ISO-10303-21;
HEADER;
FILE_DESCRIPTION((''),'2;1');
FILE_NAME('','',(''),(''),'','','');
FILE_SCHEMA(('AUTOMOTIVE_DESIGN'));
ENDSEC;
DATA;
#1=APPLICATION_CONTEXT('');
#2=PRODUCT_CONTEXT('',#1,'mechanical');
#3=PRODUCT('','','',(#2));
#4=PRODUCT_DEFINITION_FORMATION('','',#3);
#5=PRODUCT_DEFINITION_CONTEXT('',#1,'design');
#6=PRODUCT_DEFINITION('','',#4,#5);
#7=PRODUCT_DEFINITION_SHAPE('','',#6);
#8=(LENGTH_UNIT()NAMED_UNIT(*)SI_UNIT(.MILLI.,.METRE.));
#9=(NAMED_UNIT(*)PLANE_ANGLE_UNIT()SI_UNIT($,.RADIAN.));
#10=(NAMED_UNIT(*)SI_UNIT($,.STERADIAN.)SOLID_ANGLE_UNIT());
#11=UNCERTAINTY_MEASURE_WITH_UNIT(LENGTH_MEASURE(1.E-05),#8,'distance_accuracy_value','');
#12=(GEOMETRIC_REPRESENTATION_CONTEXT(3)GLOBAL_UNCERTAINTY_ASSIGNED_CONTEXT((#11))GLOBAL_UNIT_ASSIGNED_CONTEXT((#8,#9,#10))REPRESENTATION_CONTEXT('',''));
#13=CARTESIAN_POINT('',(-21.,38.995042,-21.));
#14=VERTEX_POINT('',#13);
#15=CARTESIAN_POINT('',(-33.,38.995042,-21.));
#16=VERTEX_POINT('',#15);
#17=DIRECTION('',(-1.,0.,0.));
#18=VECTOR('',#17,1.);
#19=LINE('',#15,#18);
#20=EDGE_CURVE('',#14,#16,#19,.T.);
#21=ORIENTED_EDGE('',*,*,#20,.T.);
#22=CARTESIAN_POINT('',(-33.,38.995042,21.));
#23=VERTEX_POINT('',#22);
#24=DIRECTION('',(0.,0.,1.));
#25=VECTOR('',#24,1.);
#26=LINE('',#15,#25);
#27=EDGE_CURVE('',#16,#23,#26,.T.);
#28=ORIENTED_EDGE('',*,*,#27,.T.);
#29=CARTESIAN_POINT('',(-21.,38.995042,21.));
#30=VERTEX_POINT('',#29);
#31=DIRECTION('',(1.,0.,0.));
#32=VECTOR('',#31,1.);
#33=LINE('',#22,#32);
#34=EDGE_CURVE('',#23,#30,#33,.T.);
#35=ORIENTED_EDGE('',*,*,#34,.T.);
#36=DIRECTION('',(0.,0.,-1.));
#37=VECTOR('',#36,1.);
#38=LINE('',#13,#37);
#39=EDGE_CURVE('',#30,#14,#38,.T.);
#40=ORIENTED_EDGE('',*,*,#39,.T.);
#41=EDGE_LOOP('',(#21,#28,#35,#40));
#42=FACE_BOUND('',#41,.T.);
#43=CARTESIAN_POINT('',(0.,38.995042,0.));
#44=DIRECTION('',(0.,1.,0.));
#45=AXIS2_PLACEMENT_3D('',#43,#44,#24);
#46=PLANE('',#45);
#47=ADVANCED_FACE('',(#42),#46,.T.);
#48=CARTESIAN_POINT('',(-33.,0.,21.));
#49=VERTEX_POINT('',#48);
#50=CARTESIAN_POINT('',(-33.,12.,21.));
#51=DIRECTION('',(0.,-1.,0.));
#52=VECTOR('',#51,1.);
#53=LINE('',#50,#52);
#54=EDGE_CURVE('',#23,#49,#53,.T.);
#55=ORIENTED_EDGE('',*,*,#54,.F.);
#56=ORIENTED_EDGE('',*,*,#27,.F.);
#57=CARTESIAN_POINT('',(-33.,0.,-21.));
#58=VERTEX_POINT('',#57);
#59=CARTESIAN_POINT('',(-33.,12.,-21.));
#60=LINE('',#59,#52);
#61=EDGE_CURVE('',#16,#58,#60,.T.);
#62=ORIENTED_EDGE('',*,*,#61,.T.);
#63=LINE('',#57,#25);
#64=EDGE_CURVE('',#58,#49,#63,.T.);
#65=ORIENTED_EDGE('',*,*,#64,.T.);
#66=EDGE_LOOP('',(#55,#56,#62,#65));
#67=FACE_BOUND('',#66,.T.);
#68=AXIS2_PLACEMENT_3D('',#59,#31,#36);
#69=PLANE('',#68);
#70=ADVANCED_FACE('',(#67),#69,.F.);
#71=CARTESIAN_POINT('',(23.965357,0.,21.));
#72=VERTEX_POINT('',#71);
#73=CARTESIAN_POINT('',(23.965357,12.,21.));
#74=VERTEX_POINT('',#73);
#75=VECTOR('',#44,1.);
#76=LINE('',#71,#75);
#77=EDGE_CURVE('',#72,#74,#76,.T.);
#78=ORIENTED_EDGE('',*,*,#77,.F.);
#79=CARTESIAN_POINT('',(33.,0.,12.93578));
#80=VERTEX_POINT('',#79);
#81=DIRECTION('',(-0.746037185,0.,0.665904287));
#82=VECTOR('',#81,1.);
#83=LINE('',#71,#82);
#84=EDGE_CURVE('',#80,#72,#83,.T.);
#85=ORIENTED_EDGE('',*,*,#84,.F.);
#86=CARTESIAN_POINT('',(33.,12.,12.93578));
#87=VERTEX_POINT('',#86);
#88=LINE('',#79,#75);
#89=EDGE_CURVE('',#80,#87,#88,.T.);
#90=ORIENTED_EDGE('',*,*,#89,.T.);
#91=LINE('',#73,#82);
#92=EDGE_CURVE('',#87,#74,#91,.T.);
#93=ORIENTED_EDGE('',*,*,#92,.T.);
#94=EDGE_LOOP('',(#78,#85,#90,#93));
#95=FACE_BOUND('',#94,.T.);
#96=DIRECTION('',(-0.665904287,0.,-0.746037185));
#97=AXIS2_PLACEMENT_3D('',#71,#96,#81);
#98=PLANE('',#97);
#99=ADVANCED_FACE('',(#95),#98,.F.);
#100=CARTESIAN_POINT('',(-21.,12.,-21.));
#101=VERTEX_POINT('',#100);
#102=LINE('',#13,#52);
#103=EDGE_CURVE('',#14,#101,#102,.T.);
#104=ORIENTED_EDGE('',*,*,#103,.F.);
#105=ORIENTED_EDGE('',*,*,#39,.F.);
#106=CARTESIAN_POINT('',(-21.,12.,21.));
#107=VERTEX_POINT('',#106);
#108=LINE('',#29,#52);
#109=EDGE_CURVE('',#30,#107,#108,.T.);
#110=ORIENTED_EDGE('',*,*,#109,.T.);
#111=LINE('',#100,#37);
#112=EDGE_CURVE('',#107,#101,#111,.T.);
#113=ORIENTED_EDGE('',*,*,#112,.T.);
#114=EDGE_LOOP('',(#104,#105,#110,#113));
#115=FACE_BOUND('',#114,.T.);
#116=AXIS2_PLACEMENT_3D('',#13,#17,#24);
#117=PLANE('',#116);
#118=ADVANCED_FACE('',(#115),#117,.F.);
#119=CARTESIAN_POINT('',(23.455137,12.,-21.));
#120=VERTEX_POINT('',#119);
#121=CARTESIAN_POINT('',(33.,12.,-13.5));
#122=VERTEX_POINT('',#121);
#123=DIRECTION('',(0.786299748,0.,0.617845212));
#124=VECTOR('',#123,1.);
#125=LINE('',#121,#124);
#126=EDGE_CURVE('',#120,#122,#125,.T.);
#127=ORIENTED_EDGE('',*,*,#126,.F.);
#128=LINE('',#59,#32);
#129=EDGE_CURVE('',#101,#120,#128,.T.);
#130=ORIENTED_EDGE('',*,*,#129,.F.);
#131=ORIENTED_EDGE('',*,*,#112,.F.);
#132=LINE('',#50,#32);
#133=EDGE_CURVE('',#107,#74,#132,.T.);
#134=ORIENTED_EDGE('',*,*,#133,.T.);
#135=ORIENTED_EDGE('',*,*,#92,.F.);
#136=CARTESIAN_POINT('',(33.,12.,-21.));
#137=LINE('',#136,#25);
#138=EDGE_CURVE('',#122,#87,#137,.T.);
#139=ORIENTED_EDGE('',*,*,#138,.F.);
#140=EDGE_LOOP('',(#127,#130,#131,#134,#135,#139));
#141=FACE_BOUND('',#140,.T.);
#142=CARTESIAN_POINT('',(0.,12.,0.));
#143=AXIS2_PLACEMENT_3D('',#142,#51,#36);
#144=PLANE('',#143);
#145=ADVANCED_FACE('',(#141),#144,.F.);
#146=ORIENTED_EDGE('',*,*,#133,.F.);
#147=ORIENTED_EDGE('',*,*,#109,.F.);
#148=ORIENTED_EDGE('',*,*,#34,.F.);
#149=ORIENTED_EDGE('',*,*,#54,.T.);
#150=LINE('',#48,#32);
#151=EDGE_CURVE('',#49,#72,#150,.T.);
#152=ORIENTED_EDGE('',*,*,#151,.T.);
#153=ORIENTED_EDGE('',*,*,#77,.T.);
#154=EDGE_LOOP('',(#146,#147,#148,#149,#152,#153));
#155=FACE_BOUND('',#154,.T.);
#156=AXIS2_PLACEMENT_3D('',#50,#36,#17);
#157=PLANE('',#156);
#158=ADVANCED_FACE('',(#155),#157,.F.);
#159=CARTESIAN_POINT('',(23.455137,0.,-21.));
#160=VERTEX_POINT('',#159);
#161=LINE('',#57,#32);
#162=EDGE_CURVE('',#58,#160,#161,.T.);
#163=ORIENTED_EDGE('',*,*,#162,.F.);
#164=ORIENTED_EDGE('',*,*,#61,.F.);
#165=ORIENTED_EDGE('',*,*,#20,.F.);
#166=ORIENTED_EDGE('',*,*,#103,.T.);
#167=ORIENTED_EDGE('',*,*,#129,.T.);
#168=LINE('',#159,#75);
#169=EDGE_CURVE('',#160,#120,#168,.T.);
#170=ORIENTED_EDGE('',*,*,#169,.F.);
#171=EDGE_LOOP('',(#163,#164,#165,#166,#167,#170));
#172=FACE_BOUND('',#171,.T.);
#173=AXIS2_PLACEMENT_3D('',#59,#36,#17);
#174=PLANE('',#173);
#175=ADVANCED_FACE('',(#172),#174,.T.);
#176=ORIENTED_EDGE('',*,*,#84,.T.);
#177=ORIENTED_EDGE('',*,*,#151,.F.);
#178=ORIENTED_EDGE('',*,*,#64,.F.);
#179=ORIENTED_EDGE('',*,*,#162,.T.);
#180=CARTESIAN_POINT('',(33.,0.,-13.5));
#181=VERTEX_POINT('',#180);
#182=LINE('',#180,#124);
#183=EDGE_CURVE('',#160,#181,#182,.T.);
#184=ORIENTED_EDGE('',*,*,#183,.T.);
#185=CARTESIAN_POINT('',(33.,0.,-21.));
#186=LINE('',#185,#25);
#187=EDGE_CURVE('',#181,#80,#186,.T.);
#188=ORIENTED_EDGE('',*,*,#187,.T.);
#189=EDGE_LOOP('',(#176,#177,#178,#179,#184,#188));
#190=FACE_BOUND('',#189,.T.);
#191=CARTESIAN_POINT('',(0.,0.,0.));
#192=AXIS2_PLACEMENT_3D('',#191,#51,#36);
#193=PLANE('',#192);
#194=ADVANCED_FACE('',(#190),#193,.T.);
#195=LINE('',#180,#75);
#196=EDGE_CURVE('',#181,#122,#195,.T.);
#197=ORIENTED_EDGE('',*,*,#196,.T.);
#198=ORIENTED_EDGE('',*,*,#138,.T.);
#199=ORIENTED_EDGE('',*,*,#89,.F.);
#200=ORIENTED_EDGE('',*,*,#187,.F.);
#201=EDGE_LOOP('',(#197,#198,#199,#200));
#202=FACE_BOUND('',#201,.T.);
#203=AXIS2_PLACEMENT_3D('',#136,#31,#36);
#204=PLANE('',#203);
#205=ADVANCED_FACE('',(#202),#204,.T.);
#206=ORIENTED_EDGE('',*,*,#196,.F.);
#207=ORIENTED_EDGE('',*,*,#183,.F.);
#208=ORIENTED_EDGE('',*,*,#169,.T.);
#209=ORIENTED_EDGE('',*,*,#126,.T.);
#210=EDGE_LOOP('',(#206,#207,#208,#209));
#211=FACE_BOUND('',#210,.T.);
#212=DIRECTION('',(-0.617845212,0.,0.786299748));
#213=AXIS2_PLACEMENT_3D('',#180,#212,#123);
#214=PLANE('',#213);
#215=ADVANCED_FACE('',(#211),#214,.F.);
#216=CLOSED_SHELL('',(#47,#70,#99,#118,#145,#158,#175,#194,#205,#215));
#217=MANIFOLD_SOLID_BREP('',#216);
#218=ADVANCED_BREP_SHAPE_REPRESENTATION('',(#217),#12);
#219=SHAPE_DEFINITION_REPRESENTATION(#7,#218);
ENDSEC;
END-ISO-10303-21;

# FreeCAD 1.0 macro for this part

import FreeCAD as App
import Part
import Sketcher
Q = App.Units.Quantity


def add_polygon(sketch, points):
    """Adds a closed chain of lines whose ends are joined by coincident constraints."""
    first, n = sketch.GeometryCount, len(points)
    for a, b in zip(points, points[1:] + points[:1]):
        sketch.addGeometry(Part.LineSegment(App.Vector(*a, 0), App.Vector(*b, 0)), False)
    for i in range(n):
        sketch.addConstraint(Sketcher.Constraint("Coincident", first + i, 2, first + (i + 1) % n, 1))

doc = App.newDocument("Part")
body = doc.addObject("PartDesign::Body", "Body")

sketch1 = body.newObject("Sketcher::SketchObject", "Sketch")
sketch1.AttachmentSupport = (doc.getObject("XZ_Plane"), [""])
sketch1.MapMode = "FlatFace"
add_polygon(sketch1, [(-33, -21), (-33, 21), (33, 21), (33, -21)])
sketch1.addConstraint([
    Sketcher.Constraint("Vertical", 0),
    Sketcher.Constraint("Horizontal", 1),
    Sketcher.Constraint("Vertical", 2),
    Sketcher.Constraint("Horizontal", 3),
    Sketcher.Constraint("Symmetric", 0, 2, 2, 2, -1, 1),
    Sketcher.Constraint("DistanceX", 1, 1, 1, 2, Q("66 mm")),
    Sketcher.Constraint("DistanceY", 0, 1, 0, 2, Q("42 mm")),
])
pad1 = body.newObject("PartDesign::Pad", "Pad")
pad1.Profile = sketch1
pad1.Length = 12
pad1.Reversed = True

sketch2 = body.newObject("Sketcher::SketchObject", "Sketch001")
sketch2.AttachmentSupport = (doc.getObject("XZ_Plane"), [""])
sketch2.MapMode = "FlatFace"
sketch2.AttachmentOffset = App.Placement(App.Vector(0, 0, -12), App.Rotation())
add_polygon(sketch2, [(-33, -21), (-33, 21), (-21, 21), (-21, -21)])
sketch2.addConstraint([
    Sketcher.Constraint("Vertical", 0),
    Sketcher.Constraint("Horizontal", 1),
    Sketcher.Constraint("Vertical", 2),
    Sketcher.Constraint("Horizontal", 3),
    Sketcher.Constraint("DistanceX", 1, 1, 1, 2, Q("12 mm")),
    Sketcher.Constraint("DistanceY", 0, 1, 0, 2, Q("42 mm")),
    Sketcher.Constraint("DistanceX", 0, 2, -1, 1, Q("33 mm")),
    Sketcher.Constraint("DistanceY", -1, 1, 0, 2, Q("21 mm")),
])
pad2 = body.newObject("PartDesign::Pad", "Pad001")
pad2.Profile = sketch2
pad2.Length = 26.995042
pad2.Reversed = True

sketch3 = body.newObject("Sketcher::SketchObject", "Sketch002")
sketch3.AttachmentSupport = (doc.getObject("XZ_Plane"), [""])
sketch3.MapMode = "FlatFace"
sketch3.AttachmentOffset = App.Placement(App.Vector(0, 0, -12), App.Rotation())
add_polygon(sketch3, [(33, 21), (33, 13), (24, 21)])
add_polygon(sketch3, [(33, -14), (33, -21), (23, -21)])
sketch3.addConstraint([
    Sketcher.Constraint("Vertical", 0),
    Sketcher.Constraint("Horizontal", 2),
    Sketcher.Constraint("Vertical", 3),
    Sketcher.Constraint("Horizontal", 4),
    Sketcher.Constraint("Symmetric", 2, 2, 3, 2, -1),
    Sketcher.Constraint("DistanceY", 3, 2, 3, 1, Q("7.5 mm")),
    Sketcher.Constraint("DistanceX", -1, 1, 0, 2, Q("33 mm")),
    Sketcher.Constraint("DistanceY", -1, 1, 1, 2, Q("21 mm")),
    Sketcher.Constraint("DistanceY", 0, 2, 0, 1, Q("8.06422 mm")),
    Sketcher.Constraint("Distance", 1, Q("12.110178 mm")),
    Sketcher.Constraint("DistanceX", 4, 2, 4, 1, Q("9.544863 mm")),
])
pocket1 = body.newObject("PartDesign::Pocket", "Pocket")
pocket1.Profile = sketch3
pocket1.Length = 12
pocket1.Reversed = True

doc.recompute()
